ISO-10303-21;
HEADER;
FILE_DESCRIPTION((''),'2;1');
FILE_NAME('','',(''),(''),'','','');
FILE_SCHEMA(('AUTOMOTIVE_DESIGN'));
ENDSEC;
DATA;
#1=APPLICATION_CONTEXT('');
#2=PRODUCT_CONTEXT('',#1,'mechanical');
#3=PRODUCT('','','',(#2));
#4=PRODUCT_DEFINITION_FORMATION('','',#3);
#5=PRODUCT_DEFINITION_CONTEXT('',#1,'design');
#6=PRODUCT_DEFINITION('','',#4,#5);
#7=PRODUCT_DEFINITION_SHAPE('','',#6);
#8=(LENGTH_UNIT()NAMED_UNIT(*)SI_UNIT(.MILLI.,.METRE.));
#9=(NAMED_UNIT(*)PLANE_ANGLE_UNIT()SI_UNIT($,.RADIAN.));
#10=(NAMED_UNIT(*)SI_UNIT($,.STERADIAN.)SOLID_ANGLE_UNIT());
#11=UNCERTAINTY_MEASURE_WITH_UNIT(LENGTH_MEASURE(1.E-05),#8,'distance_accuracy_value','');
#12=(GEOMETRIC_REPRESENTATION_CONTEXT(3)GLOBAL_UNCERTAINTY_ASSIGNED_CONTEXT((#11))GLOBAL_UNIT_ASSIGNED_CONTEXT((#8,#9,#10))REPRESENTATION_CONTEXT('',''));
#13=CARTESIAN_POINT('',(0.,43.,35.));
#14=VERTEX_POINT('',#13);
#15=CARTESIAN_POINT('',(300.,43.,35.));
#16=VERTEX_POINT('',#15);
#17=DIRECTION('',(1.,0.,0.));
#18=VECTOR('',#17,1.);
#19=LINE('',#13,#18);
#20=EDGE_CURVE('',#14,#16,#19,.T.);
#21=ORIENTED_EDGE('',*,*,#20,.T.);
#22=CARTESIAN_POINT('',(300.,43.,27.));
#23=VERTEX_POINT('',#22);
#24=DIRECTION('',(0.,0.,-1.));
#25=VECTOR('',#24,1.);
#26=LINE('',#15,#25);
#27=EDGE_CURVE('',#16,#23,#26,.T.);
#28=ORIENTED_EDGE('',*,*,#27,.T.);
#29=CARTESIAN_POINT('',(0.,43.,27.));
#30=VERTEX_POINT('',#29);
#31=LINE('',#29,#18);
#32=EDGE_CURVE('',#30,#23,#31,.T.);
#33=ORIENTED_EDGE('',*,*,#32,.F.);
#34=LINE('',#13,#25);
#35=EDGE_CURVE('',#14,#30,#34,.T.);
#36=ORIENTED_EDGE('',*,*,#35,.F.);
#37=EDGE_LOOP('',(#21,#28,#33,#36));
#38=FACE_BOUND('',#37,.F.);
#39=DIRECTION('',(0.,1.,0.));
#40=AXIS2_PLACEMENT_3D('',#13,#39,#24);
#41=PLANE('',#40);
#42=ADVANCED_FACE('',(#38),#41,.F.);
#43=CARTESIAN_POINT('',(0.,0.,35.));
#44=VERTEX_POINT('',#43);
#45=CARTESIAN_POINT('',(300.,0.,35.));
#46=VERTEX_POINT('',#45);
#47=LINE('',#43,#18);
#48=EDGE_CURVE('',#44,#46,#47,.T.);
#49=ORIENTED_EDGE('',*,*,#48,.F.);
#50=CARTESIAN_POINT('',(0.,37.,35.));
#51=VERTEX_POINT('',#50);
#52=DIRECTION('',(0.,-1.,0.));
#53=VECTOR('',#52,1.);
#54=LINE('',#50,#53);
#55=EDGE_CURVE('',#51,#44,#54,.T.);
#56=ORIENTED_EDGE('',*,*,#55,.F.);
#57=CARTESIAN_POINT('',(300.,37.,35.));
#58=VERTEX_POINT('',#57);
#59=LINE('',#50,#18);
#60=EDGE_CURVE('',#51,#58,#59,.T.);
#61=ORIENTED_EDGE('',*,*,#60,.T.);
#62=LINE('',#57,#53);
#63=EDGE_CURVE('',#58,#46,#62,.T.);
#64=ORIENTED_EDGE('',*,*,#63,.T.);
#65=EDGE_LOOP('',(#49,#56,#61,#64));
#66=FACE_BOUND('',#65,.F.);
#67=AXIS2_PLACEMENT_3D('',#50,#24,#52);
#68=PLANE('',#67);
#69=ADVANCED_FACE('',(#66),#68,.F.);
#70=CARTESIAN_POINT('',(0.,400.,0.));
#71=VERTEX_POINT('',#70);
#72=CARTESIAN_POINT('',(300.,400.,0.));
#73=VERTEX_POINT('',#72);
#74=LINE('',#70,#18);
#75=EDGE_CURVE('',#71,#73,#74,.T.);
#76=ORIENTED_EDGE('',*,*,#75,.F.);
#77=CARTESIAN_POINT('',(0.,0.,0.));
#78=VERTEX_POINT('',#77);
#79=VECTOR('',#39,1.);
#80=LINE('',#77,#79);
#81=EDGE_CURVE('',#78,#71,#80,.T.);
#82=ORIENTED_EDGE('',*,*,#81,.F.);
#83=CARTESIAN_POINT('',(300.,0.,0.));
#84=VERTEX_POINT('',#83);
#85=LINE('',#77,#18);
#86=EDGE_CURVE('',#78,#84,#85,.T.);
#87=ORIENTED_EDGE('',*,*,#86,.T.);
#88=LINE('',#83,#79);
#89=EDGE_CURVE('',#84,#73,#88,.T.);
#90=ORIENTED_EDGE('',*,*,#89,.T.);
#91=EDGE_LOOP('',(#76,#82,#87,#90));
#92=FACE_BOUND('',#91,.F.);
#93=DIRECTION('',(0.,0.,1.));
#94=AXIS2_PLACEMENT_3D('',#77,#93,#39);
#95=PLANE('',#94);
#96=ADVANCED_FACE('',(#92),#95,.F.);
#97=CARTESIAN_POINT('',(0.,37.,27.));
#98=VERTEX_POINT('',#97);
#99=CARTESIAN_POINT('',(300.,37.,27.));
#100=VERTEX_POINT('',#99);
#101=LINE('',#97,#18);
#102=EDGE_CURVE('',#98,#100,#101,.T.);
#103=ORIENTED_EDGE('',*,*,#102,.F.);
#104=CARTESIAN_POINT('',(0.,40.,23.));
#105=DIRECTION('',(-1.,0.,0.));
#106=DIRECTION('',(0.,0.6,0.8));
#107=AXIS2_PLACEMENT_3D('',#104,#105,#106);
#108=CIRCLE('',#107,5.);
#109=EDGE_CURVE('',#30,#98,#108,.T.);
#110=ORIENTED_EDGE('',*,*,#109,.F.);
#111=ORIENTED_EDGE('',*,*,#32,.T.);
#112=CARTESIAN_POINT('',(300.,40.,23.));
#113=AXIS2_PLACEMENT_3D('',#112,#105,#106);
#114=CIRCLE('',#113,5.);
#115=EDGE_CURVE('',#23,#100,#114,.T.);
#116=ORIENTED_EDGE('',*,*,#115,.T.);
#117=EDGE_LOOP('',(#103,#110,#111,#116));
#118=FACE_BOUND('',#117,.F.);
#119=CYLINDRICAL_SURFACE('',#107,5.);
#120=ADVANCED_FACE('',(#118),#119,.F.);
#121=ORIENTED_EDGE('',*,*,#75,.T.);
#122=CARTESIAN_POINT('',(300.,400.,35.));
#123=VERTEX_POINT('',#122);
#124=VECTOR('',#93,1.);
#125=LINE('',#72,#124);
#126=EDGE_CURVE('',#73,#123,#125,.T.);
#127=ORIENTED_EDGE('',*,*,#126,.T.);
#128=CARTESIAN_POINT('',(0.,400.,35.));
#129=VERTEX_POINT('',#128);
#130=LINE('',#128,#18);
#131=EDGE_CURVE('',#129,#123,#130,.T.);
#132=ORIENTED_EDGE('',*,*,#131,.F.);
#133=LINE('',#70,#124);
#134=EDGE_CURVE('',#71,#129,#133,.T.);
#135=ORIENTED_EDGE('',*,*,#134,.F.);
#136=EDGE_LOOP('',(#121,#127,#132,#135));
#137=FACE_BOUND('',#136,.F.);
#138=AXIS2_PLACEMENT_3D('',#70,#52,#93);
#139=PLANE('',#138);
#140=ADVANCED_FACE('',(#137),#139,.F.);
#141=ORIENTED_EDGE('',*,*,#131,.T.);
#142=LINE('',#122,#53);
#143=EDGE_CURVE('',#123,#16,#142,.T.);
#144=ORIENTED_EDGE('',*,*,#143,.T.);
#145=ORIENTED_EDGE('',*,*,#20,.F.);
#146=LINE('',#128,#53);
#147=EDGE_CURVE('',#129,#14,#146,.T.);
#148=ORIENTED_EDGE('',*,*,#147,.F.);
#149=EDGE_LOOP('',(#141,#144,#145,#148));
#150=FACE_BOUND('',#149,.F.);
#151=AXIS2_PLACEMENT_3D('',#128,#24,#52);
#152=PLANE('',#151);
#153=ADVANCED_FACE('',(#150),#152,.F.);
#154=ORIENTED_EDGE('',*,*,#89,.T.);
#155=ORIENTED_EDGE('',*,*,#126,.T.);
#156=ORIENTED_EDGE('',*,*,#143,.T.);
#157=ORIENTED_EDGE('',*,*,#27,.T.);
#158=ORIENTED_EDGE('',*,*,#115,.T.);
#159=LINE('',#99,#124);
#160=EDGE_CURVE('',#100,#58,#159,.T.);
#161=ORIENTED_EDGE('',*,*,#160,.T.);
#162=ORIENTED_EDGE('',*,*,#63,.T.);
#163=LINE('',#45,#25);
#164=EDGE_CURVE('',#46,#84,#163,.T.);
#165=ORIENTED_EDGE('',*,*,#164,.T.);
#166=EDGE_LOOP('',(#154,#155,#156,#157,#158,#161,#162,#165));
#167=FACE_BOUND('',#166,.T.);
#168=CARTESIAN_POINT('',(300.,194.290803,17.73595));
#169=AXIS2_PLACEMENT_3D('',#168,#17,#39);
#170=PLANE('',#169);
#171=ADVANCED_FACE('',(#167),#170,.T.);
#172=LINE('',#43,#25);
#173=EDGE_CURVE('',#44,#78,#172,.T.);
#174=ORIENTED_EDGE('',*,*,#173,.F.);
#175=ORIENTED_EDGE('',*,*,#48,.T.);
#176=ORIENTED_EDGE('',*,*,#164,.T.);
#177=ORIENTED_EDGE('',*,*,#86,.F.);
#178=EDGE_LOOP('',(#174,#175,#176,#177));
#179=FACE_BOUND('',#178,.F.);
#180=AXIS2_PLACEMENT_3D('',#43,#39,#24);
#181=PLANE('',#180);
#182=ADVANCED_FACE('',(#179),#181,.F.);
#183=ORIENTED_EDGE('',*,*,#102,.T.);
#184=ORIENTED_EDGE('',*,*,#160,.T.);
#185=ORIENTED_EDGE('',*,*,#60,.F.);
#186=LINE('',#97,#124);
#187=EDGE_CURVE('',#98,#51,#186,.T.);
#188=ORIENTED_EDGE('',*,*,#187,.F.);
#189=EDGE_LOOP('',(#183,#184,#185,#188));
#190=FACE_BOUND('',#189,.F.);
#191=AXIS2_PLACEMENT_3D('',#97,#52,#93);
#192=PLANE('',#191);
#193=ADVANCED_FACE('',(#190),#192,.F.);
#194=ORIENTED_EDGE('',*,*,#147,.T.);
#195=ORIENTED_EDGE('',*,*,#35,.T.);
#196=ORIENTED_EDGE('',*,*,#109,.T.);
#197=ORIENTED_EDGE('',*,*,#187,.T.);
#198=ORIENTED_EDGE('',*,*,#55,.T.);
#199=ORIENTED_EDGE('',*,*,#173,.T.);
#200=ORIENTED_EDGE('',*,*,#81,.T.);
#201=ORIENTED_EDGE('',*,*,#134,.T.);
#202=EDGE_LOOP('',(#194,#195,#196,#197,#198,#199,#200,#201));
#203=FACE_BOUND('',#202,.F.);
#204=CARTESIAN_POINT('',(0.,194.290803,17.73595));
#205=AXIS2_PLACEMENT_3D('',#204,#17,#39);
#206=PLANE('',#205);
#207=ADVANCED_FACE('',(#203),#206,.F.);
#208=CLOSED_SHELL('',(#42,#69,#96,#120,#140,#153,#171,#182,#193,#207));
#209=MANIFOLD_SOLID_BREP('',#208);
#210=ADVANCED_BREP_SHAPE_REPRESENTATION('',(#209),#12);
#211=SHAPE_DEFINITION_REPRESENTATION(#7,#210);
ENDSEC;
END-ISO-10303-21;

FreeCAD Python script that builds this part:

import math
import FreeCAD as App
import Part
import Sketcher
from FreeCAD import Vector
Q = App.Units.Quantity

doc = App.newDocument("Part")
params = doc.addObject("Spreadsheet::Sheet", "Params")
for row, (alias, value) in enumerate([
    ("sketch1_radius", "5 mm"),
    ("sketch1_width", "400 mm"),
    ("sketch1_width2", "357 mm"),
    ("sketch1_width3", "37 mm"),
    ("sketch1_height", "35 mm"),
    ("pad1_length", "300 mm"),
], start=1):
    params.set(f"A{row}", alias)
    params.set(f"B{row}", "=" + value)
    params.setAlias(f"B{row}", alias)

body = doc.addObject("PartDesign::Body", "Body")

# Sketch on YZ plane
sketch1 = body.newObject("Sketcher::SketchObject", "Sketch")
sketch1.AttachmentSupport = (doc.getObject("YZ_Plane"), [""])
sketch1.MapMode = "FlatFace"
sketch1.addGeometry([
    Part.LineSegment(Vector(0, 35, 0), Vector(0, 0, 0)),  # 0
    Part.LineSegment(Vector(0, 0, 0), Vector(400, 0, 0)),  # 1
    Part.LineSegment(Vector(400, 0, 0), Vector(400, 35, 0)),  # 2
    Part.LineSegment(Vector(400, 35, 0), Vector(43, 35, 0)),  # 3
    Part.LineSegment(Vector(43, 35, 0), Vector(43, 27, 0)),  # 4
    Part.ArcOfCircle(Part.Circle(Vector(40, 23, 0), Vector(0, 0, 1), 5), math.radians(126.869898), math.radians(413.130102)),  # 5
    Part.LineSegment(Vector(37, 27, 0), Vector(37, 35, 0)),  # 6
    Part.LineSegment(Vector(37, 35, 0), Vector(0, 35, 0)),  # 7
], False)
sketch1.addConstraint([
    Sketcher.Constraint("Coincident", 0, 2, 1, 1),
    Sketcher.Constraint("Coincident", 1, 2, 2, 1),
    Sketcher.Constraint("Coincident", 2, 2, 3, 1),
    Sketcher.Constraint("Coincident", 3, 2, 4, 1),
    Sketcher.Constraint("Coincident", 4, 2, 5, 2),
    Sketcher.Constraint("Coincident", 5, 1, 6, 1),
    Sketcher.Constraint("Coincident", 6, 2, 7, 1),
    Sketcher.Constraint("Coincident", 7, 2, 0, 1),
    Sketcher.Constraint("Vertical", 0),
    Sketcher.Constraint("Horizontal", 1),
    Sketcher.Constraint("Vertical", 2),
    Sketcher.Constraint("Horizontal", 3),
    Sketcher.Constraint("Vertical", 4),
    Sketcher.Constraint("Vertical", 6),
    Sketcher.Constraint("Horizontal", 7),
    Sketcher.Constraint("Coincident", 0, 2, -1, 1),
    Sketcher.Constraint("Horizontal", 4, 2, 5, 1),
    Sketcher.Constraint("Horizontal", 3, 2, 6, 2),
    Sketcher.Constraint("Radius", 5, Q("5 mm")),
    Sketcher.Constraint("DistanceX", 1, 1, 1, 2, Q("400 mm")),
    Sketcher.Constraint("DistanceX", 3, 2, 3, 1, Q("357 mm")),
    Sketcher.Constraint("DistanceX", 7, 2, 7, 1, Q("37 mm")),
    Sketcher.Constraint("DistanceY", 0, 2, 0, 1, Q("35 mm")),
    Sketcher.Constraint("DistanceY", 4, 2, 4, 1, Q("8 mm")),
])
sketch1.setExpression("Constraints[18]", "Params.sketch1_radius")
sketch1.setExpression("Constraints[19]", "Params.sketch1_width")
sketch1.setExpression("Constraints[20]", "Params.sketch1_width2")
sketch1.setExpression("Constraints[21]", "Params.sketch1_width3")
sketch1.setExpression("Constraints[22]", "Params.sketch1_height")
pad1 = body.newObject("PartDesign::Pad", "Pad")
pad1.Profile = sketch1
pad1.setExpression("Length", "Params.pad1_length")

doc.recompute()
